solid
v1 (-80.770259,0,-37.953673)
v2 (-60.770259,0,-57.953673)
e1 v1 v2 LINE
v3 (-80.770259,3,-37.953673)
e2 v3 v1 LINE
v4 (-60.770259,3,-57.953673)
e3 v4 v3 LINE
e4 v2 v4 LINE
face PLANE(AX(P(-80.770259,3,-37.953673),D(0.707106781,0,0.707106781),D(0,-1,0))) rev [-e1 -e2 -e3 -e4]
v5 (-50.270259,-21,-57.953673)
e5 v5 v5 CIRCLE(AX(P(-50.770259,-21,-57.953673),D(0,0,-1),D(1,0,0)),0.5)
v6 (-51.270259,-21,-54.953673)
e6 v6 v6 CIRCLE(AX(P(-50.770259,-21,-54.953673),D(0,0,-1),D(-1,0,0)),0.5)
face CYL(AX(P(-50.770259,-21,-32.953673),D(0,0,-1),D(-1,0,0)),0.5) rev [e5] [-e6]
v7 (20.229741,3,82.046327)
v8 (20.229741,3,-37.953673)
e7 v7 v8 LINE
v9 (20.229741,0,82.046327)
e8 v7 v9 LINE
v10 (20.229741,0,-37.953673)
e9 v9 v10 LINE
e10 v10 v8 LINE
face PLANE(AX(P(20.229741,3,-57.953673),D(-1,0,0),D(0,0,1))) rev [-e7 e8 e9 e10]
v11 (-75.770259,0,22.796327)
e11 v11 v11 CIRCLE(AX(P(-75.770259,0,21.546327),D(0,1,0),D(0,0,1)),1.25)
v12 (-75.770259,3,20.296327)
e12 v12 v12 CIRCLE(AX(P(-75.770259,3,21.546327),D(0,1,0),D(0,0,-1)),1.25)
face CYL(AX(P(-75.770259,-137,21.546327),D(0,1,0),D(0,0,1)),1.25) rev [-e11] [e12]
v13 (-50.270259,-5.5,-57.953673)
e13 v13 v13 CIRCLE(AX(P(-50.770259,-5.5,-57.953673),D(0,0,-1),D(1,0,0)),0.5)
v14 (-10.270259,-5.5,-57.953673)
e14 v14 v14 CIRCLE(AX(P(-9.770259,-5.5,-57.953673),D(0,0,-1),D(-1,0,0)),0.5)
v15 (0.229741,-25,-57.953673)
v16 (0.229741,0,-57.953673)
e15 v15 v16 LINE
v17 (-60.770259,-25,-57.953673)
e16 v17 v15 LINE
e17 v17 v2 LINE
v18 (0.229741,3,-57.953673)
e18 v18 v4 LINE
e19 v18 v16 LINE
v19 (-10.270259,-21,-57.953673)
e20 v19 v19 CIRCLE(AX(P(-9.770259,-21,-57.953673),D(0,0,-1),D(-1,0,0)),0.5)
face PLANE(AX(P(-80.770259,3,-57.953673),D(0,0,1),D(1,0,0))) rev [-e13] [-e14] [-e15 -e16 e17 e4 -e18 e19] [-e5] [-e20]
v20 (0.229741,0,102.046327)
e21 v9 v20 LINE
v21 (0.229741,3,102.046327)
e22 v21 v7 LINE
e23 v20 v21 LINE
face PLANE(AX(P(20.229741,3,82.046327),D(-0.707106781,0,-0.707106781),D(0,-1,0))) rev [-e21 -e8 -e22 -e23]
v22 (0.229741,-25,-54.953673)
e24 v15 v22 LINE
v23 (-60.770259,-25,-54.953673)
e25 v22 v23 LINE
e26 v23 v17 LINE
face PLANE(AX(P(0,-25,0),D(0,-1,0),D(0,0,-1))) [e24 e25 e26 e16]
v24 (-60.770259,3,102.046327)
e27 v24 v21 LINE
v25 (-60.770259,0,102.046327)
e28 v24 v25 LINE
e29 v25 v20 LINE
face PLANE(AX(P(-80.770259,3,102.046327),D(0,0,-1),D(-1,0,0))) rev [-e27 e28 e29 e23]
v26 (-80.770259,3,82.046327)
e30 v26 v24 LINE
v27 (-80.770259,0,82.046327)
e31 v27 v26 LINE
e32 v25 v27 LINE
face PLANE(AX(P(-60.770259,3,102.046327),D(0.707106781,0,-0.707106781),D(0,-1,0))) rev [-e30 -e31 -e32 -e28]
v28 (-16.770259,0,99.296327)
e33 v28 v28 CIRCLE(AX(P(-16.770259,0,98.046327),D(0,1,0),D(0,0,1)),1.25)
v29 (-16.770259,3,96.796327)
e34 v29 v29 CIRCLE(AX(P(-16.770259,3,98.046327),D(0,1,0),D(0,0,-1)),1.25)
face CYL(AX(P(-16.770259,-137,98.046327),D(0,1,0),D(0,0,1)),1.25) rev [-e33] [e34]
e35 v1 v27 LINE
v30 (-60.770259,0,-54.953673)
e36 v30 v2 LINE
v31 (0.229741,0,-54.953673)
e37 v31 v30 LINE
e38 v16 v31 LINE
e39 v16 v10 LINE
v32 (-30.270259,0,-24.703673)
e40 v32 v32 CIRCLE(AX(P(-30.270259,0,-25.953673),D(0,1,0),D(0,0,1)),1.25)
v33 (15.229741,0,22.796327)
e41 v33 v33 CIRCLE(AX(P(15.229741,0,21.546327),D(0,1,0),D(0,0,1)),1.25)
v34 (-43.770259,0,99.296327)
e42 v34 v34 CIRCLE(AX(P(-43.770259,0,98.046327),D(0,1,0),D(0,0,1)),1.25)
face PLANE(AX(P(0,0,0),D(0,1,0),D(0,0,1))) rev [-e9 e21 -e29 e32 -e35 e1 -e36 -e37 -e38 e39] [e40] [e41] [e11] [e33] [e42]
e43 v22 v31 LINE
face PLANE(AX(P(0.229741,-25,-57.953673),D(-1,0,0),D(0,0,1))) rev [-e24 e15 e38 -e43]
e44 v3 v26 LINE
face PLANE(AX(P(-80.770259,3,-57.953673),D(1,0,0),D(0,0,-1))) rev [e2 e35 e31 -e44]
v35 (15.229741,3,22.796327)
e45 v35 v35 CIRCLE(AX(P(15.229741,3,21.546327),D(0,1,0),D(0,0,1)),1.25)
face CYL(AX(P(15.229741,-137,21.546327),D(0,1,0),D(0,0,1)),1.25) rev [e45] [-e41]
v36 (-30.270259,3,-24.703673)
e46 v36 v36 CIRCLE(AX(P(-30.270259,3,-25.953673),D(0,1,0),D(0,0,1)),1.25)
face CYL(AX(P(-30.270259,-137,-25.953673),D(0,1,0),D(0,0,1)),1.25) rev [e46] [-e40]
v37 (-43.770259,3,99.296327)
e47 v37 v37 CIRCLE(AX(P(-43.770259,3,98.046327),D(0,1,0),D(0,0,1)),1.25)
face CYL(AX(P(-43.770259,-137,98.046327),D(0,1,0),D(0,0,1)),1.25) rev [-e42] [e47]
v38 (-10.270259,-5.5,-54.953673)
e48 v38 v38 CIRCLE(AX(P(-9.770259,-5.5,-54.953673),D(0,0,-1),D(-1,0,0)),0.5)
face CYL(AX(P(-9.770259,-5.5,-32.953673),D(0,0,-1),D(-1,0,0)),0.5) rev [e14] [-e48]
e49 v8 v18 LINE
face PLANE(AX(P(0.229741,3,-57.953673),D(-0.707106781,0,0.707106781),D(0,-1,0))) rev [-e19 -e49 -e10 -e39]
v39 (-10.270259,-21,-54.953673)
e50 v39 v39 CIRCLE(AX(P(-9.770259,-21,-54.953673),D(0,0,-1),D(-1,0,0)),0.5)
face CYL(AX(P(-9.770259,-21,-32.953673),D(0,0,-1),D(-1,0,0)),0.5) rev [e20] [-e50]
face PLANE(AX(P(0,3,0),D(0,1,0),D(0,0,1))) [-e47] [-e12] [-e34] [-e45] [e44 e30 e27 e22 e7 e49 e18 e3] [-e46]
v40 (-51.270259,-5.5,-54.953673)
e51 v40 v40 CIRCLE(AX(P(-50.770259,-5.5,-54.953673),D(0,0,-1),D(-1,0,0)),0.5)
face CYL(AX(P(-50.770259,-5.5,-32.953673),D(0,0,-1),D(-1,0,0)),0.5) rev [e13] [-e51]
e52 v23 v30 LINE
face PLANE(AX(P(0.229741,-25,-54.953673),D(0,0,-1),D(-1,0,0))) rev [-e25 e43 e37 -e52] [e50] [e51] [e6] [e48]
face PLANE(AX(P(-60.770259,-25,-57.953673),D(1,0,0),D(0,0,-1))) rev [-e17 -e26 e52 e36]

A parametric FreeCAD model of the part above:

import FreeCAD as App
import Part
import Sketcher
from FreeCAD import Vector
Q = App.Units.Quantity


def edges_at(feature, points):
    """Names of the edges that pass closest to the given points."""
    edges = feature.Shape.Edges
    near = lambda p: min(range(len(edges)), key=lambda i: edges[i].distToShape(Part.Vertex(*p))[0])
    return sorted({f"Edge{near(p) + 1}" for p in points})

doc = App.newDocument("Part")
body = doc.addObject("PartDesign::Body", "Body")

# Sketch on XZ plane
sketch1 = doc.addObject("Sketcher::SketchObject", "Sketch")
body.addObject(sketch1)
sketch1.AttachmentSupport = (doc.XZ_Plane, [""])
sketch1.MapMode = "FlatFace"
sketch1.addGeometry([
    Part.LineSegment(Vector(-81, -58, 0), Vector(-81, 102, 0)),
    Part.LineSegment(Vector(-81, 102, 0), Vector(20, 102, 0)),
    Part.LineSegment(Vector(20, 102, 0), Vector(20, -58, 0)),
    Part.LineSegment(Vector(20, -58, 0), Vector(-81, -58, 0)),
], False)
sketch1.addConstraint([
    Sketcher.Constraint("Coincident", 0, 2, 1, 1),
    Sketcher.Constraint("Coincident", 1, 2, 2, 1),
    Sketcher.Constraint("Coincident", 2, 2, 3, 1),
    Sketcher.Constraint("Coincident", 3, 2, 0, 1),
    Sketcher.Constraint("Vertical", 0),
    Sketcher.Constraint("Horizontal", 1),
    Sketcher.Constraint("Vertical", 2),
    Sketcher.Constraint("Horizontal", 3),
    Sketcher.Constraint("DistanceX", 1, 1, 1, 2, Q("101 mm")),
    Sketcher.Constraint("DistanceY", 0, 1, 0, 2, Q("160 mm")),
    Sketcher.Constraint("DistanceX", 0, 2, -1, 1, Q("80.770259 mm")),
    Sketcher.Constraint("DistanceY", -1, 1, 0, 2, Q("102.046327 mm")),
])
pad1 = doc.addObject("PartDesign::Pad", "Pad")
body.addObject(pad1)
pad1.Profile = sketch1
pad1.Length = 3
pad1.Reversed = True

# Sketch on XZ plane
sketch2 = doc.addObject("Sketcher::SketchObject", "Sketch001")
body.addObject(sketch2)
sketch2.AttachmentSupport = (doc.XZ_Plane, [""])
sketch2.MapMode = "FlatFace"
sketch2.AttachmentOffset = App.Placement(Vector(0, 0, -3), App.Rotation())
sketch2.addGeometry([
    Part.Circle(Vector(15.2, 21.5, 0), Vector(0, 0, 1), 1.2),  # 0
    Part.Circle(Vector(-75.8, 21.5, 0), Vector(0, 0, 1), 1.2),  # 1
    Part.Circle(Vector(-30.3, -26, 0), Vector(0, 0, 1), 1.2),  # 2
    Part.Circle(Vector(-43.8, 98, 0), Vector(0, 0, 1), 1.2),  # 3
    Part.Circle(Vector(-16.8, 98, 0), Vector(0, 0, 1), 1.2),  # 4
], False)
sketch2.addConstraint([
    Sketcher.Constraint("Equal", 0, 1),
    Sketcher.Constraint("Equal", 1, 2),
    Sketcher.Constraint("Equal", 2, 3),
    Sketcher.Constraint("Equal", 3, 4),
    Sketcher.Constraint("Horizontal", 0, 3, 1, 3),
    Sketcher.Constraint("Horizontal", 3, 3, 4, 3),
    Sketcher.Constraint("Diameter", 0, Q("2.5 mm")),
    Sketcher.Constraint("DistanceX", 1, 3, 0, 3, Q("91 mm")),
    Sketcher.Constraint("DistanceX", 1, 3, 3, 3, Q("32 mm")),
    Sketcher.Constraint("DistanceY", 2, 3, 3, 3, Q("124 mm")),
    Sketcher.Constraint("DistanceX", 3, 3, 4, 3, Q("27 mm")),
    Sketcher.Constraint("DistanceX", 2, 3, 0, 3, Q("45.5 mm")),
    Sketcher.Constraint("DistanceY", 2, 3, 0, 3, Q("47.5 mm")),
    Sketcher.Constraint("DistanceX", -1, 1, 0, 3, Q("15.229741 mm")),
    Sketcher.Constraint("DistanceY", -1, 1, 0, 3, Q("21.546327 mm")),
])
pocket1 = doc.addObject("PartDesign::Pocket", "Pocket")
body.addObject(pocket1)
pocket1.Profile = sketch2
pocket1.Length = 140
pocket1.Reversed = True
doc.recompute()

chamfer = doc.addObject("PartDesign::Chamfer", "Chamfer")
body.addObject(chamfer)
chamfer.Base = (pocket1, edges_at(pocket1, [
    (-80.77, 1.5, -57.954),
    (20.23, 1.5, -57.954),
    (20.23, 1.5, 102.046),
    (-80.77, 1.5, 102.046),
]))
chamfer.Size = 20

# Sketch on XZ plane
sketch3 = doc.addObject("Sketcher::SketchObject", "Sketch002")
body.addObject(sketch3)
sketch3.AttachmentSupport = (doc.XZ_Plane, [""])
sketch3.MapMode = "FlatFace"
sketch3.addGeometry([
    Part.LineSegment(Vector(-60.8, -55, 0), Vector(-60.8, -58, 0)),
    Part.LineSegment(Vector(-60.8, -58, 0), Vector(0.2, -58, 0)),
    Part.LineSegment(Vector(0.2, -58, 0), Vector(0.2, -55, 0)),
    Part.LineSegment(Vector(0.2, -55, 0), Vector(-60.8, -55, 0)),
], False)
sketch3.addConstraint([
    Sketcher.Constraint("Coincident", 0, 2, 1, 1),
    Sketcher.Constraint("Coincident", 1, 2, 2, 1),
    Sketcher.Constraint("Coincident", 2, 2, 3, 1),
    Sketcher.Constraint("Coincident", 3, 2, 0, 1),
    Sketcher.Constraint("Vertical", 0),
    Sketcher.Constraint("Horizontal", 1),
    Sketcher.Constraint("Vertical", 2),
    Sketcher.Constraint("Horizontal", 3),
    Sketcher.Constraint("DistanceX", 1, 1, 1, 2, Q("61 mm")),
    Sketcher.Constraint("DistanceY", 0, 2, 0, 1, Q("3 mm")),
    Sketcher.Constraint("DistanceX", 0, 2, -1, 1, Q("60.770259 mm")),
    Sketcher.Constraint("DistanceY", 0, 2, -1, 1, Q("57.953673 mm")),
])
pad2 = doc.addObject("PartDesign::Pad", "Pad001")
body.addObject(pad2)
pad2.Profile = sketch3
pad2.Length = 25

# Sketch on XY plane
sketch4 = doc.addObject("Sketcher::SketchObject", "Sketch003")
body.addObject(sketch4)
sketch4.AttachmentSupport = (doc.XY_Plane, [""])
sketch4.MapMode = "FlatFace"
sketch4.AttachmentOffset = App.Placement(Vector(0, 0, -57.953673), App.Rotation())
sketch4.addGeometry([
    Part.Circle(Vector(-9.8, -5.5, 0), Vector(0, 0, 1), 0.5),
    Part.Circle(Vector(-50.8, -21, 0), Vector(0, 0, 1), 0.5),
    Part.Circle(Vector(-9.8, -21, 0), Vector(0, 0, 1), 0.5),
    Part.Circle(Vector(-50.8, -5.5, 0), Vector(0, 0, 1), 0.5),
], False)
sketch4.addConstraint([
    Sketcher.Constraint("Equal", 0, 1),
    Sketcher.Constraint("Equal", 1, 2),
    Sketcher.Constraint("Equal", 2, 3),
    Sketcher.Constraint("Horizontal", 1, 3, 2, 3),
    Sketcher.Constraint("Horizontal", 0, 3, 3, 3),
    Sketcher.Constraint("Vertical", 0, 3, 2, 3),
    Sketcher.Constraint("Vertical", 1, 3, 3, 3),
    Sketcher.Constraint("Diameter", 0, Q("1 mm")),
    Sketcher.Constraint("DistanceY", 1, 3, -1, 1, Q("21 mm")),
    Sketcher.Constraint("DistanceX", 1, 3, 0, 3, Q("41 mm")),
    Sketcher.Constraint("DistanceY", 0, 3, -1, 1, Q("5.5 mm")),
    Sketcher.Constraint("DistanceX", 0, 3, -1, 1, Q("9.770259 mm")),
])
pocket2 = doc.addObject("PartDesign::Pocket", "Pocket001")
body.addObject(pocket2)
pocket2.Profile = sketch4
pocket2.Length = 25
pocket2.Reversed = True

doc.recompute()
